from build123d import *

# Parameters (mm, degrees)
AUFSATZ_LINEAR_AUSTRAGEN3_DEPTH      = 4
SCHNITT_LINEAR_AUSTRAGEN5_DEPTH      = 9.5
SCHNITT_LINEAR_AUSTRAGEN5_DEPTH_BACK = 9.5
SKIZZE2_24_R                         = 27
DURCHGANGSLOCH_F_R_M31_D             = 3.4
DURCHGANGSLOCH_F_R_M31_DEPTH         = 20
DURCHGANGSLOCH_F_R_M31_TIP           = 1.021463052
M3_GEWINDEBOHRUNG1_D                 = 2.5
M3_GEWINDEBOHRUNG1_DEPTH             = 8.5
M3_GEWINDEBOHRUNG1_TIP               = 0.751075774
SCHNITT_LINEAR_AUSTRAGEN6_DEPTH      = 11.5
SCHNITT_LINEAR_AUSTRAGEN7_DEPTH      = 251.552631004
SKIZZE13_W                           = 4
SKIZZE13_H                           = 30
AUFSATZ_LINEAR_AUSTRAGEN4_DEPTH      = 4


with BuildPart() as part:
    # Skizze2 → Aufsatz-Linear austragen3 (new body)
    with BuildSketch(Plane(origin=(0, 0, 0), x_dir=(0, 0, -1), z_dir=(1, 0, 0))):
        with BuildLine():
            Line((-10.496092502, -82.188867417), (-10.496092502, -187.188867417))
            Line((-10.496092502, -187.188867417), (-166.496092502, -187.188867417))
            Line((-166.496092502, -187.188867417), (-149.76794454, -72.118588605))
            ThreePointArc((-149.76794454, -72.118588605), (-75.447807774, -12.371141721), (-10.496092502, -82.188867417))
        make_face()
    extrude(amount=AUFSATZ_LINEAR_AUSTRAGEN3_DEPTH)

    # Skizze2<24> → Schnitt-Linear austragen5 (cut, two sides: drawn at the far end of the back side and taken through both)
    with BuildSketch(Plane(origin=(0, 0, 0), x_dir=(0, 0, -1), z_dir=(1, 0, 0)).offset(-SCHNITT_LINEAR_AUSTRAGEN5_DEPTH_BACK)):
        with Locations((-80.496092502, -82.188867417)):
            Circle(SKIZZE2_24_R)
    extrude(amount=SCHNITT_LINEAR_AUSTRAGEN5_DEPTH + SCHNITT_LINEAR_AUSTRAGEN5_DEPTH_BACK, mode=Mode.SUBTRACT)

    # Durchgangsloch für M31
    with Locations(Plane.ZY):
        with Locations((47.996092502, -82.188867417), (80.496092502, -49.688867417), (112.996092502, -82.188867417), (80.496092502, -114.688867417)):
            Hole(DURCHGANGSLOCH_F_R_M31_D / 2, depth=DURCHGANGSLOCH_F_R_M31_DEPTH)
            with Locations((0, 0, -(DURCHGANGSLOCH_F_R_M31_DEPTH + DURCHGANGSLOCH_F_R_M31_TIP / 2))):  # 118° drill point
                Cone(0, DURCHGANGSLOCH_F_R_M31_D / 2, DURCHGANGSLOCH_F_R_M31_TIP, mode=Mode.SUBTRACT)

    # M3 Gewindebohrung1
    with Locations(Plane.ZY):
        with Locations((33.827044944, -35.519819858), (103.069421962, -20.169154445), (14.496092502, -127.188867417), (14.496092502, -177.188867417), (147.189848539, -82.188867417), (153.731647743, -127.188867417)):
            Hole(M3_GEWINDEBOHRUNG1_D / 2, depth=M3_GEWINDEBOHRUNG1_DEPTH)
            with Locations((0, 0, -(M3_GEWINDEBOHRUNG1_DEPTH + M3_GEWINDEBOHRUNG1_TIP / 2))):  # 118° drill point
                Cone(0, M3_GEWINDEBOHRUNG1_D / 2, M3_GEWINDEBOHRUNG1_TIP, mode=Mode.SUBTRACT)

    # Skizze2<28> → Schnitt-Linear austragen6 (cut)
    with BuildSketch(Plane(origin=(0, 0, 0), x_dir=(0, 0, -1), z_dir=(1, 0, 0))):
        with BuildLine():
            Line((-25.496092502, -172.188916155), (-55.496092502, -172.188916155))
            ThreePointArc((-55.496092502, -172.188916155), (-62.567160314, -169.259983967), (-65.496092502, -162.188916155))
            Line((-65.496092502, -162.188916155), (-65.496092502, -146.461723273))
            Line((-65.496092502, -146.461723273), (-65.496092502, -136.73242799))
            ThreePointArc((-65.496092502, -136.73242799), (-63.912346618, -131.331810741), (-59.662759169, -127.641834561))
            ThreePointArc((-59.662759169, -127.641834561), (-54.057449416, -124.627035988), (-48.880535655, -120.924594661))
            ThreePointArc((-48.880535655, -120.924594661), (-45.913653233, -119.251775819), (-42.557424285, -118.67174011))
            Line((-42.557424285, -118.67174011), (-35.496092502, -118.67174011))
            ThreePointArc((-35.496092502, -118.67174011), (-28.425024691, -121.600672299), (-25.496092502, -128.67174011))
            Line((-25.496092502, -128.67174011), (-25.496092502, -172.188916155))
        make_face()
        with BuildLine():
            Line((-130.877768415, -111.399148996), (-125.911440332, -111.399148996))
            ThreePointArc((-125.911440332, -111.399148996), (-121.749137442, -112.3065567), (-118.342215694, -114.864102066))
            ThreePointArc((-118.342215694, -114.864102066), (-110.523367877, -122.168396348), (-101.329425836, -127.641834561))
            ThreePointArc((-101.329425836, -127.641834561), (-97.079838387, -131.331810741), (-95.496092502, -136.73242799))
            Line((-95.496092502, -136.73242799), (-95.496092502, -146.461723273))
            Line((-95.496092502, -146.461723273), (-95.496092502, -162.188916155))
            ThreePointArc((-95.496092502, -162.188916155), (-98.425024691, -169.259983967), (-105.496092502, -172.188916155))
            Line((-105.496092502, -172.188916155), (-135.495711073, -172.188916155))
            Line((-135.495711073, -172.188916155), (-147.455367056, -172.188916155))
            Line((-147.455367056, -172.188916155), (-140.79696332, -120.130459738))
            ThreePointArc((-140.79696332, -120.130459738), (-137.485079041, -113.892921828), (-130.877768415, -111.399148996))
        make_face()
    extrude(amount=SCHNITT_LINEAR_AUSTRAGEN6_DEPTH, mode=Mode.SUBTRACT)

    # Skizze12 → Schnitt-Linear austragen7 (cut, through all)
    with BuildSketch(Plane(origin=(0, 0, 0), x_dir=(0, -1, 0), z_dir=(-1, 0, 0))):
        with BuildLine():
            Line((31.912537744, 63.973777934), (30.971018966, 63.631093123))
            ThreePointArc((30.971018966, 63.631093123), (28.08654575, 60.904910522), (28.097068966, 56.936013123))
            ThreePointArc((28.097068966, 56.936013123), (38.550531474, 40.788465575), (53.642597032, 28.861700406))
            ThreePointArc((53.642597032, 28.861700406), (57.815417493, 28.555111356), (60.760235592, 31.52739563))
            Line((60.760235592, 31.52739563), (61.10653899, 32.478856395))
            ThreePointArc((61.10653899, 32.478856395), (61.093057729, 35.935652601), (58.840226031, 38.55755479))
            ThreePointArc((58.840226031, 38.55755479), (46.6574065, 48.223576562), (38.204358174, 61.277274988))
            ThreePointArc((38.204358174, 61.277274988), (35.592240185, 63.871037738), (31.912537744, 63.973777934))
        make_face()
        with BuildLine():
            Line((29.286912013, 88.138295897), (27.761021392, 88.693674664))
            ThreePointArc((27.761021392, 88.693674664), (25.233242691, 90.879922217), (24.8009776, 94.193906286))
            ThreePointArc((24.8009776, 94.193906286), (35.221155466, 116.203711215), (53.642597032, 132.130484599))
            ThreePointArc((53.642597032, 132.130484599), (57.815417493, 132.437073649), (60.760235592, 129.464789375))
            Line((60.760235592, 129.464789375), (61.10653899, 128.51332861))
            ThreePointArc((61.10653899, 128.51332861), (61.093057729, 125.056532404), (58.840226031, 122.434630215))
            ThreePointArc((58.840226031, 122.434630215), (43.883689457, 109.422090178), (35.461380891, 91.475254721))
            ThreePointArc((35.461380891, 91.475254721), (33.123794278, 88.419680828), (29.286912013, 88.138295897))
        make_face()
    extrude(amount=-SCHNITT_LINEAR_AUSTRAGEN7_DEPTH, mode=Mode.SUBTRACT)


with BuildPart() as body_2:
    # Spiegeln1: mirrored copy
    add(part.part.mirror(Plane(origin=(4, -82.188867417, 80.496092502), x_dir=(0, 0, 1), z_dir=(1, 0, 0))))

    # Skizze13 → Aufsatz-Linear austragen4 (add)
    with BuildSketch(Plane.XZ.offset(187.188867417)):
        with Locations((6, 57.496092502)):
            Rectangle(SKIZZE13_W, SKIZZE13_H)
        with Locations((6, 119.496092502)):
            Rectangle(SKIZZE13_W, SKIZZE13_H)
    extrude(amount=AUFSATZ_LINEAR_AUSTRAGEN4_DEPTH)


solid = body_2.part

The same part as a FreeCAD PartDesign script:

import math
import FreeCAD as App
import Part
import Sketcher

V = App.Vector
Q = App.Units.Quantity


def add_polygon(sketch, points):
    """Adds a closed chain of lines whose ends are joined by coincident constraints."""
    first, n = sketch.GeometryCount, len(points)
    for a, b in zip(points, points[1:] + points[:1]):
        sketch.addGeometry(Part.LineSegment(App.Vector(*a, 0), App.Vector(*b, 0)), False)
    for i in range(n):
        sketch.addConstraint(Sketcher.Constraint("Coincident", first + i, 2, first + (i + 1) % n, 1))

doc = App.newDocument("Part")
body = doc.addObject("PartDesign::Body", "Body")

sketch1 = body.newObject("Sketcher::SketchObject", "Sketch")
sketch1.AttachmentSupport = (doc.getObject("YZ_Plane"), [""])
sketch1.MapMode = "FlatFace"
sketch1.addGeometry(Part.LineSegment(V(-187, 10, 0), V(-82, 10, 0)), False)
sketch1.addGeometry(Part.ArcOfCircle(Part.Circle(V(-82, 80, 0), V(0, 0, 1), 70), math.radians(-90), math.radians(82)), False)
sketch1.addGeometry(Part.LineSegment(V(-72, 150, 0), V(-187, 166, 0)), False)
sketch1.addGeometry(Part.LineSegment(V(-187, 166, 0), V(-187, 10, 0)), False)
sketch1.addConstraint(Sketcher.Constraint("Tangent", 0, 2, 1, 1))
sketch1.addConstraint(Sketcher.Constraint("Tangent", 1, 2, 2, 1))
sketch1.addConstraint(Sketcher.Constraint("Coincident", 2, 2, 3, 1))
sketch1.addConstraint(Sketcher.Constraint("Coincident", 3, 2, 0, 1))
sketch1.addConstraint(Sketcher.Constraint("Horizontal", 0))
sketch1.addConstraint(Sketcher.Constraint("Vertical", 3))
sketch1.addConstraint(Sketcher.Constraint("Radius", 1, Q("70 mm")))
sketch1.addConstraint(Sketcher.Constraint("DistanceX", 0, 1, 0, 2, Q("105 mm")))
sketch1.addConstraint(Sketcher.Constraint("DistanceY", 3, 2, 3, 1, Q("156 mm")))
sketch1.addConstraint(Sketcher.Constraint("DistanceX", 1, 2, -1, 1, Q("72.118589 mm")))
sketch1.addConstraint(Sketcher.Constraint("DistanceY", -1, 1, 1, 3, Q("80.496093 mm")))
pad1 = body.newObject("PartDesign::Pad", "Pad")
pad1.Profile = sketch1
pad1.Length = 4

sketch2 = body.newObject("Sketcher::SketchObject", "Sketch001")
sketch2.AttachmentSupport = (doc.getObject("YZ_Plane"), [""])
sketch2.MapMode = "FlatFace"
sketch2.addGeometry(Part.Circle(V(-82, 80, 0), V(0, 0, 1), 27), False)
sketch2.addConstraint(Sketcher.Constraint("Diameter", 0, Q("54 mm")))
sketch2.addConstraint(Sketcher.Constraint("DistanceX", 0, 3, -1, 1, Q("82.188867 mm")))
sketch2.addConstraint(Sketcher.Constraint("DistanceY", -1, 1, 0, 3, Q("80.496093 mm")))
pocket1 = body.newObject("PartDesign::Pocket", "Pocket")
pocket1.Profile = sketch2
pocket1.Type = "ThroughAll"
pocket1.Midplane = True

sketch3 = body.newObject("Sketcher::SketchObject", "Sketch002")
sketch3.AttachmentSupport = (doc.getObject("YZ_Plane"), [""])
sketch3.MapMode = "FlatFace"
sketch3.addGeometry(Part.Circle(V(-82.2, 48, 0), V(0, 0, 1), 1.7), False)
sketch3.addGeometry(Part.Circle(V(-49.7, 80.5, 0), V(0, 0, 1), 1.7), False)
sketch3.addGeometry(Part.Circle(V(-82.2, 113, 0), V(0, 0, 1), 1.7), False)
sketch3.addGeometry(Part.Circle(V(-114.7, 80.5, 0), V(0, 0, 1), 1.7), False)
sketch3.addConstraint(Sketcher.Constraint("Equal", 0, 1))
sketch3.addConstraint(Sketcher.Constraint("Equal", 1, 2))
sketch3.addConstraint(Sketcher.Constraint("Equal", 2, 3))
sketch3.addConstraint(Sketcher.Constraint("Horizontal", 1, 3, 3, 3))
sketch3.addConstraint(Sketcher.Constraint("Vertical", 0, 3, 2, 3))
sketch3.addConstraint(Sketcher.Constraint("Diameter", 0, Q("3.4 mm")))
sketch3.addConstraint(Sketcher.Constraint("DistanceY", 0, 3, 2, 3, Q("65 mm")))
sketch3.addConstraint(Sketcher.Constraint("DistanceX", 3, 3, 1, 3, Q("65 mm")))
sketch3.addConstraint(Sketcher.Constraint("DistanceX", 0, 3, 1, 3, Q("32.5 mm")))
sketch3.addConstraint(Sketcher.Constraint("DistanceY", 0, 3, 1, 3, Q("32.5 mm")))
sketch3.addConstraint(Sketcher.Constraint("DistanceX", 0, 3, -1, 1, Q("82.188867 mm")))
sketch3.addConstraint(Sketcher.Constraint("DistanceY", -1, 1, 0, 3, Q("47.996093 mm")))
doc.recompute()
hole = body.newObject("PartDesign::Hole", "Hole")
hole.Profile = sketch3
hole.ThreadType = "None"
hole.Diameter = 3.4
hole.DepthType = "Dimension"
hole.Depth = 20
hole.DrillPoint = "Angled"
hole.DrillPointAngle = 118
hole.Reversed = True

sketch4 = body.newObject("Sketcher::SketchObject", "Sketch003")
sketch4.AttachmentSupport = (doc.getObject("YZ_Plane"), [""])
sketch4.MapMode = "FlatFace"
sketch4.addGeometry(Part.Circle(V(-35.5, 33.8, 0), V(0, 0, 1), 1.2), False)
sketch4.addGeometry(Part.Circle(V(-20.2, 103.1, 0), V(0, 0, 1), 1.2), False)
sketch4.addGeometry(Part.Circle(V(-127.2, 14.5, 0), V(0, 0, 1), 1.2), False)
sketch4.addGeometry(Part.Circle(V(-177.2, 14.5, 0), V(0, 0, 1), 1.2), False)
sketch4.addGeometry(Part.Circle(V(-82.2, 147.2, 0), V(0, 0, 1), 1.2), False)
sketch4.addGeometry(Part.Circle(V(-127.2, 153.7, 0), V(0, 0, 1), 1.2), False)
sketch4.addConstraint(Sketcher.Constraint("Equal", 0, 1))
sketch4.addConstraint(Sketcher.Constraint("Equal", 1, 2))
sketch4.addConstraint(Sketcher.Constraint("Equal", 2, 3))
sketch4.addConstraint(Sketcher.Constraint("Equal", 3, 4))
sketch4.addConstraint(Sketcher.Constraint("Equal", 4, 5))
sketch4.addConstraint(Sketcher.Constraint("Horizontal", 2, 3, 3, 3))
sketch4.addConstraint(Sketcher.Constraint("Vertical", 2, 3, 5, 3))
sketch4.addConstraint(Sketcher.Constraint("Diameter", 0, Q("2.5 mm")))
sketch4.addConstraint(Sketcher.Constraint("DistanceX", 3, 3, 2, 3, Q("50 mm")))
sketch4.addConstraint(Sketcher.Constraint("DistanceX", 2, 3, 4, 3, Q("45 mm")))
sketch4.addConstraint(Sketcher.Constraint("DistanceY", 4, 3, 5, 3, Q("6.541799 mm")))
sketch4.addConstraint(Sketcher.Constraint("DistanceX", 0, 3, -1, 1, Q("35.51982 mm")))
sketch4.addConstraint(Sketcher.Constraint("DistanceY", -1, 1, 1, 3, Q("103.069422 mm")))
sketch4.addConstraint(Sketcher.Constraint("DistanceY", -1, 1, 4, 3, Q("147.189849 mm")))
sketch4.addConstraint(Sketcher.Constraint("DistanceY", 2, 3, 1, 3, Q("88.573329 mm")))
sketch4.addConstraint(Sketcher.Constraint("DistanceY", -1, 1, 0, 3, Q("33.827045 mm")))
sketch4.addConstraint(Sketcher.Constraint("DistanceX", 1, 3, -1, 1, Q("20.169154 mm")))
sketch4.addConstraint(Sketcher.Constraint("DistanceX", 2, 3, -1, 1, Q("127.188867 mm")))
doc.recompute()
hole2 = body.newObject("PartDesign::Hole", "Hole001")
hole2.Profile = sketch4
hole2.ThreadType = "None"
hole2.Diameter = 2.5
hole2.DepthType = "Dimension"
hole2.Depth = 8.5
hole2.DrillPoint = "Angled"
hole2.DrillPointAngle = 118
hole2.Reversed = True

sketch5 = body.newObject("Sketcher::SketchObject", "Sketch004")
sketch5.AttachmentSupport = (doc.getObject("YZ_Plane"), [""])
sketch5.MapMode = "FlatFace"
sketch5.addGeometry(Part.LineSegment(V(-172.2, 55.5, 0), V(-172.2, 25.5, 0)), False)
sketch5.addGeometry(Part.LineSegment(V(-172.2, 25.5, 0), V(-128.7, 25.5, 0)), False)
sketch5.addGeometry(Part.ArcOfCircle(Part.Circle(V(-128.7, 35.5, 0), V(0, 0, 1), 10), math.radians(-90), math.radians(0)), False)
sketch5.addGeometry(Part.LineSegment(V(-118.7, 35.5, 0), V(-118.7, 42.6, 0)), False)
sketch5.addGeometry(Part.ArcOfCircle(Part.Circle(V(-128.7, 42.6, 0), V(0, 0, 1), 10), math.radians(0), math.radians(39)), False)
sketch5.addGeometry(Part.ArcOfCircle(Part.Circle(V(-82.2, 80.5, 0), V(0, 0, 1), 50), math.radians(-155.38), math.radians(-140.78)), False)
sketch5.addGeometry(Part.ArcOfCircle(Part.Circle(V(-136.7, 55.5, 0), V(0, 0, 1), 10), math.radians(25), math.radians(90)), False)
sketch5.addGeometry(Part.LineSegment(V(-136.7, 65.5, 0), V(-162.2, 65.5, 0)), False)
sketch5.addGeometry(Part.ArcOfCircle(Part.Circle(V(-162.2, 55.5, 0), V(0, 0, 1), 10), math.radians(90), math.radians(180)), False)
sketch5.addGeometry(Part.LineSegment(V(-111.4, 125.9, 0), V(-111.4, 130.9, 0)), False)
sketch5.addGeometry(Part.ArcOfCircle(Part.Circle(V(-121.4, 130.9, 0), V(0, 0, 1), 10), math.radians(0), math.radians(83)), False)
sketch5.addGeometry(Part.LineSegment(V(-120.1, 140.8, 0), V(-172.2, 147.5, 0)), False)
sketch5.addGeometry(Part.LineSegment(V(-172.2, 147.5, 0), V(-172.2, 105.5, 0)), False)
sketch5.addGeometry(Part.ArcOfCircle(Part.Circle(V(-162.2, 105.5, 0), V(0, 0, 1), 10), math.radians(-180), math.radians(-90)), False)
sketch5.addGeometry(Part.LineSegment(V(-162.2, 95.5, 0), V(-136.7, 95.5, 0)), False)
sketch5.addGeometry(Part.ArcOfCircle(Part.Circle(V(-136.7, 105.5, 0), V(0, 0, 1), 10), math.radians(-90), math.radians(-25)), False)
sketch5.addGeometry(Part.ArcOfCircle(Part.Circle(V(-82.2, 80.5, 0), V(0, 0, 1), 50), math.radians(131), math.radians(155)), False)
sketch5.addGeometry(Part.ArcOfCircle(Part.Circle(V(-121.4, 125.9, 0), V(0, 0, 1), 10), math.radians(-49), math.radians(0)), False)
sketch5.addConstraint(Sketcher.Constraint("Coincident", 0, 2, 1, 1))
sketch5.addConstraint(Sketcher.Constraint("Tangent", 1, 2, 2, 1))
sketch5.addConstraint(Sketcher.Constraint("Tangent", 2, 2, 3, 1))
sketch5.addConstraint(Sketcher.Constraint("Tangent", 3, 2, 4, 1))
sketch5.addConstraint(Sketcher.Constraint("Tangent", 4, 2, 5, 2))
sketch5.addConstraint(Sketcher.Constraint("Tangent", 5, 1, 6, 1))
sketch5.addConstraint(Sketcher.Constraint("Tangent", 6, 2, 7, 1))
sketch5.addConstraint(Sketcher.Constraint("Tangent", 7, 2, 8, 1))
sketch5.addConstraint(Sketcher.Constraint("Tangent", 8, 2, 0, 1))
sketch5.addConstraint(Sketcher.Constraint("Tangent", 9, 2, 10, 1))
sketch5.addConstraint(Sketcher.Constraint("Tangent", 10, 2, 11, 1))
sketch5.addConstraint(Sketcher.Constraint("Coincident", 11, 2, 12, 1))
sketch5.addConstraint(Sketcher.Constraint("Tangent", 12, 2, 13, 1))
sketch5.addConstraint(Sketcher.Constraint("Tangent", 13, 2, 14, 1))
sketch5.addConstraint(Sketcher.Constraint("Tangent", 14, 2, 15, 1))
sketch5.addConstraint(Sketcher.Constraint("Tangent", 15, 2, 16, 2))
sketch5.addConstraint(Sketcher.Constraint("Tangent", 16, 1, 17, 1))
sketch5.addConstraint(Sketcher.Constraint("Tangent", 17, 2, 9, 1))
sketch5.addConstraint(Sketcher.Constraint("Vertical", 0))
sketch5.addConstraint(Sketcher.Constraint("Horizontal", 1))
sketch5.addConstraint(Sketcher.Constraint("Vertical", 3))
sketch5.addConstraint(Sketcher.Constraint("Horizontal", 7))
sketch5.addConstraint(Sketcher.Constraint("Vertical", 9))
sketch5.addConstraint(Sketcher.Constraint("Vertical", 12))
sketch5.addConstraint(Sketcher.Constraint("Horizontal", 14))
sketch5.addConstraint(Sketcher.Constraint("Coincident", 16, 3, 5, 3))
sketch5.addConstraint(Sketcher.Constraint("Equal", 2, 4))
sketch5.addConstraint(Sketcher.Constraint("Equal", 4, 6))
sketch5.addConstraint(Sketcher.Constraint("Equal", 6, 8))
sketch5.addConstraint(Sketcher.Constraint("Equal", 8, 10))
sketch5.addConstraint(Sketcher.Constraint("Equal", 10, 13))
sketch5.addConstraint(Sketcher.Constraint("Equal", 13, 15))
sketch5.addConstraint(Sketcher.Constraint("Equal", 5, 16))
sketch5.addConstraint(Sketcher.Constraint("Equal", 15, 17))
sketch5.addConstraint(Sketcher.Constraint("Vertical", 8, 3, 13, 3))
sketch5.addConstraint(Sketcher.Constraint("Vertical", 6, 3, 15, 3))
sketch5.addConstraint(Sketcher.Constraint("Radius", 2, Q("10 mm")))
sketch5.addConstraint(Sketcher.Constraint("Radius", 5, Q("50 mm")))
sketch5.addConstraint(Sketcher.Constraint("DistanceY", 0, 2, 0, 1, Q("30 mm")))
sketch5.addConstraint(Sketcher.Constraint("DistanceY", 2, 3, 5, 3, Q("45 mm")))
sketch5.addConstraint(Sketcher.Constraint("DistanceX", 7, 2, 7, 1, Q("25.456488 mm")))
sketch5.addConstraint(Sketcher.Constraint("DistanceY", 3, 1, 3, 2, Q("7.061332 mm")))
sketch5.addConstraint(Sketcher.Constraint("DistanceY", 9, 1, 9, 2, Q("4.966328 mm")))
sketch5.addConstraint(Sketcher.Constraint("DistanceY", 10, 3, 11, 2, Q("16.577599 mm")))
sketch5.addConstraint(Sketcher.Constraint("DistanceY", 12, 2, 12, 1, Q("41.959275 mm")))
sketch5.addConstraint(Sketcher.Constraint("DistanceX", 2, 3, -1, 1, Q("128.67174 mm")))
sketch5.addConstraint(Sketcher.Constraint("DistanceY", -1, 1, 10, 3, Q("130.877768 mm")))
pocket2 = body.newObject("PartDesign::Pocket", "Pocket001")
pocket2.Profile = sketch5
pocket2.Length = 11.5
pocket2.Reversed = True

sketch6 = body.newObject("Sketcher::SketchObject", "Sketch005")
sketch6.AttachmentSupport = (doc.getObject("YZ_Plane"), [""])
sketch6.MapMode = "FlatFace"
sketch6.addGeometry(Part.LineSegment(V(-31.9, 64, 0), V(-31, 63.6, 0)), False)
sketch6.addGeometry(Part.ArcOfCircle(Part.Circle(V(-32.7, 58.9, 0), V(0, 0, 1), 5), math.radians(-24), math.radians(70)), False)
sketch6.addGeometry(Part.ArcOfCircle(Part.Circle(V(-82.2, 80.5, 0), V(0, 0, 1), 59), math.radians(-61), math.radians(-24)), False)
sketch6.addGeometry(Part.ArcOfCircle(Part.Circle(V(-56.1, 33.2, 0), V(0, 0, 1), 5), math.radians(-160), math.radians(-61)), False)
sketch6.addGeometry(Part.LineSegment(V(-60.8, 31.5, 0), V(-61.1, 32.5, 0)), False)
sketch6.addGeometry(Part.ArcOfCircle(Part.Circle(V(-56.4, 34.2, 0), V(0, 0, 1), 5), math.radians(119), math.radians(200)), False)
sketch6.addGeometry(Part.ArcOfCircle(Part.Circle(V(-82.2, 80.5, 0), V(0, 0, 1), 48), math.radians(-61), math.radians(-24)), False)
sketch6.addGeometry(Part.ArcOfCircle(Part.Circle(V(-33.6, 59.3, 0), V(0, 0, 1), 5), math.radians(70), math.radians(156)), False)
sketch6.addGeometry(Part.LineSegment(V(-27.8, 88.7, 0), V(-29.3, 88.1, 0)), False)
sketch6.addGeometry(Part.ArcOfCircle(Part.Circle(V(-30.9, 92.5, 0), V(0, 0, 1), 4.7), math.radians(-167), math.radians(-70)), False)
sketch6.addGeometry(Part.ArcOfCircle(Part.Circle(V(-82.2, 80.5, 0), V(0, 0, 1), 48), math.radians(13), math.radians(61)), False)
sketch6.addGeometry(Part.ArcOfCircle(Part.Circle(V(-56.4, 126.8, 0), V(0, 0, 1), 5), math.radians(160), math.radians(241)), False)
sketch6.addGeometry(Part.LineSegment(V(-61.1, 128.5, 0), V(-60.8, 129.5, 0)), False)
sketch6.addGeometry(Part.ArcOfCircle(Part.Circle(V(-56.1, 127.8, 0), V(0, 0, 1), 5), math.radians(61), math.radians(160)), False)
sketch6.addGeometry(Part.ArcOfCircle(Part.Circle(V(-82.2, 80.5, 0), V(0, 0, 1), 59), math.radians(13), math.radians(61)), False)
sketch6.addGeometry(Part.ArcOfCircle(Part.Circle(V(-29.4, 93.1, 0), V(0, 0, 1), 4.7), math.radians(-70), math.radians(13)), False)
sketch6.addConstraint(Sketcher.Constraint("Tangent", 0, 2, 1, 2))
sketch6.addConstraint(Sketcher.Constraint("Tangent", 1, 1, 2, 2))
sketch6.addConstraint(Sketcher.Constraint("Tangent", 2, 1, 3, 2))
sketch6.addConstraint(Sketcher.Constraint("Tangent", 3, 1, 4, 1))
sketch6.addConstraint(Sketcher.Constraint("Tangent", 4, 2, 5, 2))
sketch6.addConstraint(Sketcher.Constraint("Tangent", 5, 1, 6, 1))
sketch6.addConstraint(Sketcher.Constraint("Tangent", 6, 2, 7, 2))
sketch6.addConstraint(Sketcher.Constraint("Tangent", 7, 1, 0, 1))
sketch6.addConstraint(Sketcher.Constraint("Tangent", 8, 2, 9, 2))
sketch6.addConstraint(Sketcher.Constraint("Tangent", 9, 1, 10, 1))
sketch6.addConstraint(Sketcher.Constraint("Tangent", 10, 2, 11, 2))
sketch6.addConstraint(Sketcher.Constraint("Tangent", 11, 1, 12, 1))
sketch6.addConstraint(Sketcher.Constraint("Tangent", 12, 2, 13, 2))
sketch6.addConstraint(Sketcher.Constraint("Tangent", 13, 1, 14, 2))
sketch6.addConstraint(Sketcher.Constraint("Tangent", 14, 1, 15, 2))
sketch6.addConstraint(Sketcher.Constraint("Tangent", 15, 1, 8, 1))
sketch6.addConstraint(Sketcher.Constraint("Coincident", 6, 3, 2, 3))
sketch6.addConstraint(Sketcher.Constraint("Coincident", 10, 3, 2, 3))
sketch6.addConstraint(Sketcher.Constraint("Coincident", 14, 3, 2, 3))
sketch6.addConstraint(Sketcher.Constraint("Equal", 1, 3))
sketch6.addConstraint(Sketcher.Constraint("Equal", 3, 5))
sketch6.addConstraint(Sketcher.Constraint("Equal", 5, 7))
sketch6.addConstraint(Sketcher.Constraint("Equal", 6, 10))
sketch6.addConstraint(Sketcher.Constraint("Equal", 7, 11))
sketch6.addConstraint(Sketcher.Constraint("Equal", 11, 13))
sketch6.addConstraint(Sketcher.Constraint("Equal", 2, 14))
sketch6.addConstraint(Sketcher.Constraint("Equal", 9, 15))
sketch6.addConstraint(Sketcher.Constraint("Perpendicular", 4, 8))
sketch6.addConstraint(Sketcher.Constraint("Perpendicular", 0, 12))
sketch6.addConstraint(Sketcher.Constraint("Vertical", 5, 3, 11, 3))
sketch6.addConstraint(Sketcher.Constraint("Vertical", 3, 3, 13, 3))
sketch6.addConstraint(Sketcher.Constraint("Radius", 1, Q("5 mm")))
sketch6.addConstraint(Sketcher.Constraint("Radius", 2, Q("59 mm")))
sketch6.addConstraint(Sketcher.Constraint("Radius", 6, Q("48 mm")))
sketch6.addConstraint(Sketcher.Constraint("Angle", 0, Q("-20 deg")))
sketch6.addConstraint(Sketcher.Constraint("Radius", 9, Q("4.693595 mm")))
sketch6.addConstraint(Sketcher.Constraint("DistanceY", -1, 1, 2, 1, Q("28.8617 mm")))
sketch6.addConstraint(Sketcher.Constraint("DistanceY", 1, 1, 7, 3, Q("2.339302 mm")))
sketch6.addConstraint(Sketcher.Constraint("DistanceY", 1, 1, 15, 3, Q("36.168198 mm")))
sketch6.addConstraint(Sketcher.Constraint("DistanceX", 4, 2, 7, 3, Q("27.483901 mm")))
sketch6.addConstraint(Sketcher.Constraint("DistanceX", 1, 3, -1, 1, Q("32.68112 mm")))
pocket3 = body.newObject("PartDesign::Pocket", "Pocket002")
pocket3.Profile = sketch6
pocket3.Type = "ThroughAll"
pocket3.Reversed = True
body2 = doc.addObject("PartDesign::Body", "Body001")
doc.recompute()

mirroring = doc.addObject("Part::Mirroring", "Mirroring")
mirroring.Source = body
mirroring.Base = V(4, -82.188867, 80.496093)
mirroring.Normal = V(1, 0, 0)
body2.BaseFeature = mirroring
doc.recompute()

sketch7 = body2.newObject("Sketcher::SketchObject", "Sketch006")
sketch7.AttachmentSupport = (doc.getObject("XZ_Plane001"), [""])
sketch7.MapMode = "FlatFace"
sketch7.AttachmentOffset = App.Placement(V(0, 0, 187.188867), App.Rotation())
add_polygon(sketch7, [(4, 72.5), (4, 42.5), (8, 42.5), (8, 72.5)])
add_polygon(sketch7, [(4, 134.5), (4, 104.5), (8, 104.5), (8, 134.5)])
sketch7.addConstraint(Sketcher.Constraint("Vertical", 0))
sketch7.addConstraint(Sketcher.Constraint("Horizontal", 1))
sketch7.addConstraint(Sketcher.Constraint("Vertical", 2))
sketch7.addConstraint(Sketcher.Constraint("Horizontal", 3))
sketch7.addConstraint(Sketcher.Constraint("Vertical", 4))
sketch7.addConstraint(Sketcher.Constraint("Horizontal", 5))
sketch7.addConstraint(Sketcher.Constraint("Vertical", 6))
sketch7.addConstraint(Sketcher.Constraint("Horizontal", 7))
sketch7.addConstraint(Sketcher.Constraint("Vertical", 3, 2, 4, 2))
sketch7.addConstraint(Sketcher.Constraint("Vertical", 2, 2, 5, 2))
sketch7.addConstraint(Sketcher.Constraint("Equal", 2, 4))
sketch7.addConstraint(Sketcher.Constraint("DistanceX", 1, 1, 1, 2, Q("4 mm")))
sketch7.addConstraint(Sketcher.Constraint("DistanceY", 0, 2, 0, 1, Q("30 mm")))
sketch7.addConstraint(Sketcher.Constraint("DistanceX", -1, 1, 0, 2, Q("4 mm")))
sketch7.addConstraint(Sketcher.Constraint("DistanceY", 3, 2, 4, 2, Q("32 mm")))
sketch7.addConstraint(Sketcher.Constraint("DistanceY", -1, 1, 0, 2, Q("42.496093 mm")))
pad2 = body2.newObject("PartDesign::Pad", "Pad001")
pad2.Profile = sketch7
pad2.Length = 4
body.Visibility = False
mirroring.Visibility = False

doc.recompute()
